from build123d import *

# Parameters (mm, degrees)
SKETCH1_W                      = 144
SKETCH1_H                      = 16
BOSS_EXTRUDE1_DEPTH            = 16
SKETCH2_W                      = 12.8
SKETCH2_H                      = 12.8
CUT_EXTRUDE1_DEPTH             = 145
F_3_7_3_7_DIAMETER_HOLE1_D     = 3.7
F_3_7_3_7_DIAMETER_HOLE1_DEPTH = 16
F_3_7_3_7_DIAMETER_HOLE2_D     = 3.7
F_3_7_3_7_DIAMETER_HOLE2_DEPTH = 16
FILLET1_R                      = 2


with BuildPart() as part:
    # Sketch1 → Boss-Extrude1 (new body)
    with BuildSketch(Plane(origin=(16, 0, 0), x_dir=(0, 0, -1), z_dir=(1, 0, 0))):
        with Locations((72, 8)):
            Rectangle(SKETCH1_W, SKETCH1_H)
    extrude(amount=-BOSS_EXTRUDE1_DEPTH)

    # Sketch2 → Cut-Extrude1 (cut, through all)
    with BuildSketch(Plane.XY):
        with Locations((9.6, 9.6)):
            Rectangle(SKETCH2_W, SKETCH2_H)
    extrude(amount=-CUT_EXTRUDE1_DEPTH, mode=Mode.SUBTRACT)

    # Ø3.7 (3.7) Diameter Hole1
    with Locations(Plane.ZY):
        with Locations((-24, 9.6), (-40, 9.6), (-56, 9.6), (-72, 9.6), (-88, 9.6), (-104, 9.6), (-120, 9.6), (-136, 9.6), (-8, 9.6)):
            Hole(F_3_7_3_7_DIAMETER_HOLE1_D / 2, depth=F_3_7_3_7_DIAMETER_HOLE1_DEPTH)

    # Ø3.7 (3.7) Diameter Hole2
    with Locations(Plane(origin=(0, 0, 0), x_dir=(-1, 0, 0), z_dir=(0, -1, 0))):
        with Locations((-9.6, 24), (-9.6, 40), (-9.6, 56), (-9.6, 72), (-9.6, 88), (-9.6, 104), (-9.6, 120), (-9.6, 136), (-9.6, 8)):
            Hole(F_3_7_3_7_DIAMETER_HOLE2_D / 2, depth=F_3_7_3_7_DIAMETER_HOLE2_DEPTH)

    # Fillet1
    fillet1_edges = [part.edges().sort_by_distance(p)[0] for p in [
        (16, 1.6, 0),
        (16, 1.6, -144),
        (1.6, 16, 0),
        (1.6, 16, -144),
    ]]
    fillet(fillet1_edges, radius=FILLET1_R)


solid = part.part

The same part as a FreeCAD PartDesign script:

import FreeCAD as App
import Part
import Sketcher

V = App.Vector


def edges_at(feature, points):
    """Names of the edges that pass closest to the given points."""
    edges = feature.Shape.Edges
    near = lambda p: min(range(len(edges)), key=lambda i: edges[i].distToShape(Part.Vertex(*p))[0])
    return sorted({f"Edge{near(p) + 1}" for p in points})


def add_polygon(sketch, points):
    """Adds a closed chain of lines whose ends are joined by coincident constraints."""
    first, n = sketch.GeometryCount, len(points)
    for a, b in zip(points, points[1:] + points[:1]):
        sketch.addGeometry(Part.LineSegment(App.Vector(*a, 0), App.Vector(*b, 0)), False)
    for i in range(n):
        sketch.addConstraint(Sketcher.Constraint("Coincident", first + i, 2, first + (i + 1) % n, 1))

doc = App.newDocument("Part")
body = doc.addObject("PartDesign::Body", "Body")

sketch1 = body.newObject("Sketcher::SketchObject", "Sketch")
sketch1.AttachmentSupport = (doc.getObject("YZ_Plane"), [""])
sketch1.MapMode = "FlatFace"
sketch1.AttachmentOffset = App.Placement(V(0, 0, 16), App.Rotation())
add_polygon(sketch1, [(16, 0), (0, 0), (0, -144), (16, -144)])
sketch1.addConstraint(Sketcher.Constraint("Horizontal", 0))
sketch1.addConstraint(Sketcher.Constraint("Vertical", 1))
sketch1.addConstraint(Sketcher.Constraint("Horizontal", 2))
sketch1.addConstraint(Sketcher.Constraint("Vertical", 3))
sketch1.addConstraint(Sketcher.Constraint("Coincident", 0, 2, -1, 1))
sketch1.addConstraint(Sketcher.Constraint("DistanceX", 0, 2, 0, 1, 16.0))
sketch1.addConstraint(Sketcher.Constraint("DistanceY", 1, 2, 1, 1, 144.0))
pad1 = body.newObject("PartDesign::Pad", "Pad")
pad1.Profile = sketch1
pad1.Length = 16
pad1.Reversed = True

sketch2 = body.newObject("Sketcher::SketchObject", "Sketch001")
sketch2.AttachmentSupport = (doc.getObject("XY_Plane"), [""])
sketch2.MapMode = "FlatFace"
add_polygon(sketch2, [(3.2, 16), (3.2, 3.2), (16, 3.2), (16, 16)])
sketch2.addConstraint(Sketcher.Constraint("Vertical", 0))
sketch2.addConstraint(Sketcher.Constraint("Horizontal", 1))
sketch2.addConstraint(Sketcher.Constraint("Vertical", 2))
sketch2.addConstraint(Sketcher.Constraint("Horizontal", 3))
sketch2.addConstraint(Sketcher.Constraint("Equal", 3, 0))
sketch2.addConstraint(Sketcher.Constraint("DistanceX", 1, 1, 1, 2, 12.8))
sketch2.addConstraint(Sketcher.Constraint("DistanceX", -1, 1, 1, 2, 16.0))
sketch2.addConstraint(Sketcher.Constraint("DistanceY", -1, 1, 2, 2, 16.0))
pocket1 = body.newObject("PartDesign::Pocket", "Pocket")
pocket1.Profile = sketch2
pocket1.Type = "ThroughAll"

sketch3 = body.newObject("Sketcher::SketchObject", "Sketch002")
sketch3.AttachmentSupport = (doc.getObject("YZ_Plane"), [""])
sketch3.MapMode = "FlatFace"
sketch3.addGeometry(Part.Circle(V(9.6, -24, 0), V(0, 0, 1), 1.85), False)
sketch3.addGeometry(Part.Circle(V(9.6, -40, 0), V(0, 0, 1), 1.85), False)
sketch3.addGeometry(Part.Circle(V(9.6, -56, 0), V(0, 0, 1), 1.85), False)
sketch3.addGeometry(Part.Circle(V(9.6, -72, 0), V(0, 0, 1), 1.85), False)
sketch3.addGeometry(Part.Circle(V(9.6, -88, 0), V(0, 0, 1), 1.85), False)
sketch3.addGeometry(Part.Circle(V(9.6, -104, 0), V(0, 0, 1), 1.85), False)
sketch3.addGeometry(Part.Circle(V(9.6, -120, 0), V(0, 0, 1), 1.85), False)
sketch3.addGeometry(Part.Circle(V(9.6, -136, 0), V(0, 0, 1), 1.85), False)
sketch3.addGeometry(Part.Circle(V(9.6, -8, 0), V(0, 0, 1), 1.85), False)
sketch3.addConstraint(Sketcher.Constraint("Equal", 0, 1))
sketch3.addConstraint(Sketcher.Constraint("Equal", 1, 2))
sketch3.addConstraint(Sketcher.Constraint("Equal", 2, 3))
sketch3.addConstraint(Sketcher.Constraint("Equal", 3, 4))
sketch3.addConstraint(Sketcher.Constraint("Equal", 4, 5))
sketch3.addConstraint(Sketcher.Constraint("Equal", 5, 6))
sketch3.addConstraint(Sketcher.Constraint("Equal", 6, 7))
sketch3.addConstraint(Sketcher.Constraint("Equal", 7, 8))
sketch3.addConstraint(Sketcher.Constraint("Vertical", 0, 3, 1, 3))
sketch3.addConstraint(Sketcher.Constraint("Vertical", 1, 3, 2, 3))
sketch3.addConstraint(Sketcher.Constraint("Vertical", 2, 3, 3, 3))
sketch3.addConstraint(Sketcher.Constraint("Vertical", 3, 3, 4, 3))
sketch3.addConstraint(Sketcher.Constraint("Vertical", 4, 3, 5, 3))
sketch3.addConstraint(Sketcher.Constraint("Vertical", 5, 3, 6, 3))
sketch3.addConstraint(Sketcher.Constraint("Vertical", 6, 3, 7, 3))
sketch3.addConstraint(Sketcher.Constraint("Vertical", 7, 3, 8, 3))
sketch3.addConstraint(Sketcher.Constraint("Diameter", 0, 3.7))
sketch3.addConstraint(Sketcher.Constraint("DistanceY", 0, 3, -1, 1, 24.0))
sketch3.addConstraint(Sketcher.Constraint("DistanceY", 1, 3, -1, 1, 40.0))
sketch3.addConstraint(Sketcher.Constraint("DistanceY", 2, 3, -1, 1, 56.0))
sketch3.addConstraint(Sketcher.Constraint("DistanceY", 3, 3, -1, 1, 72.0))
sketch3.addConstraint(Sketcher.Constraint("DistanceY", 4, 3, -1, 1, 88.0))
sketch3.addConstraint(Sketcher.Constraint("DistanceY", 5, 3, -1, 1, 104.0))
sketch3.addConstraint(Sketcher.Constraint("DistanceY", 6, 3, -1, 1, 120.0))
sketch3.addConstraint(Sketcher.Constraint("DistanceY", 7, 3, -1, 1, 136.0))
sketch3.addConstraint(Sketcher.Constraint("DistanceY", 8, 3, -1, 1, 8.0))
sketch3.addConstraint(Sketcher.Constraint("DistanceX", -1, 1, 0, 3, 9.6))
doc.recompute()
hole = body.newObject("PartDesign::Hole", "Hole")
hole.Profile = sketch3
hole.ThreadType = "None"
hole.Diameter = 3.7
hole.DepthType = "Dimension"
hole.Depth = 16
hole.DrillPoint = "Flat"
hole.Reversed = True

sketch4 = body.newObject("Sketcher::SketchObject", "Sketch003")
sketch4.AttachmentSupport = (doc.getObject("XZ_Plane"), [""])
sketch4.MapMode = "FlatFace"
sketch4.addGeometry(Part.Circle(V(9.6, -24, 0), V(0, 0, 1), 1.85), False)
sketch4.addGeometry(Part.Circle(V(9.6, -40, 0), V(0, 0, 1), 1.85), False)
sketch4.addGeometry(Part.Circle(V(9.6, -56, 0), V(0, 0, 1), 1.85), False)
sketch4.addGeometry(Part.Circle(V(9.6, -72, 0), V(0, 0, 1), 1.85), False)
sketch4.addGeometry(Part.Circle(V(9.6, -88, 0), V(0, 0, 1), 1.85), False)
sketch4.addGeometry(Part.Circle(V(9.6, -104, 0), V(0, 0, 1), 1.85), False)
sketch4.addGeometry(Part.Circle(V(9.6, -120, 0), V(0, 0, 1), 1.85), False)
sketch4.addGeometry(Part.Circle(V(9.6, -136, 0), V(0, 0, 1), 1.85), False)
sketch4.addGeometry(Part.Circle(V(9.6, -8, 0), V(0, 0, 1), 1.85), False)
sketch4.addConstraint(Sketcher.Constraint("Equal", 0, 1))
sketch4.addConstraint(Sketcher.Constraint("Equal", 1, 2))
sketch4.addConstraint(Sketcher.Constraint("Equal", 2, 3))
sketch4.addConstraint(Sketcher.Constraint("Equal", 3, 4))
sketch4.addConstraint(Sketcher.Constraint("Equal", 4, 5))
sketch4.addConstraint(Sketcher.Constraint("Equal", 5, 6))
sketch4.addConstraint(Sketcher.Constraint("Equal", 6, 7))
sketch4.addConstraint(Sketcher.Constraint("Equal", 7, 8))
sketch4.addConstraint(Sketcher.Constraint("Vertical", 0, 3, 1, 3))
sketch4.addConstraint(Sketcher.Constraint("Vertical", 1, 3, 2, 3))
sketch4.addConstraint(Sketcher.Constraint("Vertical", 2, 3, 3, 3))
sketch4.addConstraint(Sketcher.Constraint("Vertical", 3, 3, 4, 3))
sketch4.addConstraint(Sketcher.Constraint("Vertical", 4, 3, 5, 3))
sketch4.addConstraint(Sketcher.Constraint("Vertical", 5, 3, 6, 3))
sketch4.addConstraint(Sketcher.Constraint("Vertical", 6, 3, 7, 3))
sketch4.addConstraint(Sketcher.Constraint("Vertical", 7, 3, 8, 3))
sketch4.addConstraint(Sketcher.Constraint("Diameter", 0, 3.7))
sketch4.addConstraint(Sketcher.Constraint("DistanceY", 0, 3, -1, 1, 24.0))
sketch4.addConstraint(Sketcher.Constraint("DistanceY", 1, 3, -1, 1, 40.0))
sketch4.addConstraint(Sketcher.Constraint("DistanceY", 2, 3, -1, 1, 56.0))
sketch4.addConstraint(Sketcher.Constraint("DistanceY", 3, 3, -1, 1, 72.0))
sketch4.addConstraint(Sketcher.Constraint("DistanceY", 4, 3, -1, 1, 88.0))
sketch4.addConstraint(Sketcher.Constraint("DistanceY", 5, 3, -1, 1, 104.0))
sketch4.addConstraint(Sketcher.Constraint("DistanceY", 6, 3, -1, 1, 120.0))
sketch4.addConstraint(Sketcher.Constraint("DistanceY", 7, 3, -1, 1, 136.0))
sketch4.addConstraint(Sketcher.Constraint("DistanceY", 8, 3, -1, 1, 8.0))
sketch4.addConstraint(Sketcher.Constraint("DistanceX", -1, 1, 0, 3, 9.6))
doc.recompute()
hole2 = body.newObject("PartDesign::Hole", "Hole001")
hole2.Profile = sketch4
hole2.ThreadType = "None"
hole2.Diameter = 3.7
hole2.DepthType = "Dimension"
hole2.Depth = 16
hole2.DrillPoint = "Flat"
doc.recompute()

fillet = body.newObject("PartDesign::Fillet", "Fillet")
fillet.Base = (hole2, edges_at(hole2, [
    (16, 1.6, 0),
    (16, 1.6, -144),
    (1.6, 16, 0),
    (1.6, 16, -144),
]))
fillet.Radius = 2

doc.recompute()
